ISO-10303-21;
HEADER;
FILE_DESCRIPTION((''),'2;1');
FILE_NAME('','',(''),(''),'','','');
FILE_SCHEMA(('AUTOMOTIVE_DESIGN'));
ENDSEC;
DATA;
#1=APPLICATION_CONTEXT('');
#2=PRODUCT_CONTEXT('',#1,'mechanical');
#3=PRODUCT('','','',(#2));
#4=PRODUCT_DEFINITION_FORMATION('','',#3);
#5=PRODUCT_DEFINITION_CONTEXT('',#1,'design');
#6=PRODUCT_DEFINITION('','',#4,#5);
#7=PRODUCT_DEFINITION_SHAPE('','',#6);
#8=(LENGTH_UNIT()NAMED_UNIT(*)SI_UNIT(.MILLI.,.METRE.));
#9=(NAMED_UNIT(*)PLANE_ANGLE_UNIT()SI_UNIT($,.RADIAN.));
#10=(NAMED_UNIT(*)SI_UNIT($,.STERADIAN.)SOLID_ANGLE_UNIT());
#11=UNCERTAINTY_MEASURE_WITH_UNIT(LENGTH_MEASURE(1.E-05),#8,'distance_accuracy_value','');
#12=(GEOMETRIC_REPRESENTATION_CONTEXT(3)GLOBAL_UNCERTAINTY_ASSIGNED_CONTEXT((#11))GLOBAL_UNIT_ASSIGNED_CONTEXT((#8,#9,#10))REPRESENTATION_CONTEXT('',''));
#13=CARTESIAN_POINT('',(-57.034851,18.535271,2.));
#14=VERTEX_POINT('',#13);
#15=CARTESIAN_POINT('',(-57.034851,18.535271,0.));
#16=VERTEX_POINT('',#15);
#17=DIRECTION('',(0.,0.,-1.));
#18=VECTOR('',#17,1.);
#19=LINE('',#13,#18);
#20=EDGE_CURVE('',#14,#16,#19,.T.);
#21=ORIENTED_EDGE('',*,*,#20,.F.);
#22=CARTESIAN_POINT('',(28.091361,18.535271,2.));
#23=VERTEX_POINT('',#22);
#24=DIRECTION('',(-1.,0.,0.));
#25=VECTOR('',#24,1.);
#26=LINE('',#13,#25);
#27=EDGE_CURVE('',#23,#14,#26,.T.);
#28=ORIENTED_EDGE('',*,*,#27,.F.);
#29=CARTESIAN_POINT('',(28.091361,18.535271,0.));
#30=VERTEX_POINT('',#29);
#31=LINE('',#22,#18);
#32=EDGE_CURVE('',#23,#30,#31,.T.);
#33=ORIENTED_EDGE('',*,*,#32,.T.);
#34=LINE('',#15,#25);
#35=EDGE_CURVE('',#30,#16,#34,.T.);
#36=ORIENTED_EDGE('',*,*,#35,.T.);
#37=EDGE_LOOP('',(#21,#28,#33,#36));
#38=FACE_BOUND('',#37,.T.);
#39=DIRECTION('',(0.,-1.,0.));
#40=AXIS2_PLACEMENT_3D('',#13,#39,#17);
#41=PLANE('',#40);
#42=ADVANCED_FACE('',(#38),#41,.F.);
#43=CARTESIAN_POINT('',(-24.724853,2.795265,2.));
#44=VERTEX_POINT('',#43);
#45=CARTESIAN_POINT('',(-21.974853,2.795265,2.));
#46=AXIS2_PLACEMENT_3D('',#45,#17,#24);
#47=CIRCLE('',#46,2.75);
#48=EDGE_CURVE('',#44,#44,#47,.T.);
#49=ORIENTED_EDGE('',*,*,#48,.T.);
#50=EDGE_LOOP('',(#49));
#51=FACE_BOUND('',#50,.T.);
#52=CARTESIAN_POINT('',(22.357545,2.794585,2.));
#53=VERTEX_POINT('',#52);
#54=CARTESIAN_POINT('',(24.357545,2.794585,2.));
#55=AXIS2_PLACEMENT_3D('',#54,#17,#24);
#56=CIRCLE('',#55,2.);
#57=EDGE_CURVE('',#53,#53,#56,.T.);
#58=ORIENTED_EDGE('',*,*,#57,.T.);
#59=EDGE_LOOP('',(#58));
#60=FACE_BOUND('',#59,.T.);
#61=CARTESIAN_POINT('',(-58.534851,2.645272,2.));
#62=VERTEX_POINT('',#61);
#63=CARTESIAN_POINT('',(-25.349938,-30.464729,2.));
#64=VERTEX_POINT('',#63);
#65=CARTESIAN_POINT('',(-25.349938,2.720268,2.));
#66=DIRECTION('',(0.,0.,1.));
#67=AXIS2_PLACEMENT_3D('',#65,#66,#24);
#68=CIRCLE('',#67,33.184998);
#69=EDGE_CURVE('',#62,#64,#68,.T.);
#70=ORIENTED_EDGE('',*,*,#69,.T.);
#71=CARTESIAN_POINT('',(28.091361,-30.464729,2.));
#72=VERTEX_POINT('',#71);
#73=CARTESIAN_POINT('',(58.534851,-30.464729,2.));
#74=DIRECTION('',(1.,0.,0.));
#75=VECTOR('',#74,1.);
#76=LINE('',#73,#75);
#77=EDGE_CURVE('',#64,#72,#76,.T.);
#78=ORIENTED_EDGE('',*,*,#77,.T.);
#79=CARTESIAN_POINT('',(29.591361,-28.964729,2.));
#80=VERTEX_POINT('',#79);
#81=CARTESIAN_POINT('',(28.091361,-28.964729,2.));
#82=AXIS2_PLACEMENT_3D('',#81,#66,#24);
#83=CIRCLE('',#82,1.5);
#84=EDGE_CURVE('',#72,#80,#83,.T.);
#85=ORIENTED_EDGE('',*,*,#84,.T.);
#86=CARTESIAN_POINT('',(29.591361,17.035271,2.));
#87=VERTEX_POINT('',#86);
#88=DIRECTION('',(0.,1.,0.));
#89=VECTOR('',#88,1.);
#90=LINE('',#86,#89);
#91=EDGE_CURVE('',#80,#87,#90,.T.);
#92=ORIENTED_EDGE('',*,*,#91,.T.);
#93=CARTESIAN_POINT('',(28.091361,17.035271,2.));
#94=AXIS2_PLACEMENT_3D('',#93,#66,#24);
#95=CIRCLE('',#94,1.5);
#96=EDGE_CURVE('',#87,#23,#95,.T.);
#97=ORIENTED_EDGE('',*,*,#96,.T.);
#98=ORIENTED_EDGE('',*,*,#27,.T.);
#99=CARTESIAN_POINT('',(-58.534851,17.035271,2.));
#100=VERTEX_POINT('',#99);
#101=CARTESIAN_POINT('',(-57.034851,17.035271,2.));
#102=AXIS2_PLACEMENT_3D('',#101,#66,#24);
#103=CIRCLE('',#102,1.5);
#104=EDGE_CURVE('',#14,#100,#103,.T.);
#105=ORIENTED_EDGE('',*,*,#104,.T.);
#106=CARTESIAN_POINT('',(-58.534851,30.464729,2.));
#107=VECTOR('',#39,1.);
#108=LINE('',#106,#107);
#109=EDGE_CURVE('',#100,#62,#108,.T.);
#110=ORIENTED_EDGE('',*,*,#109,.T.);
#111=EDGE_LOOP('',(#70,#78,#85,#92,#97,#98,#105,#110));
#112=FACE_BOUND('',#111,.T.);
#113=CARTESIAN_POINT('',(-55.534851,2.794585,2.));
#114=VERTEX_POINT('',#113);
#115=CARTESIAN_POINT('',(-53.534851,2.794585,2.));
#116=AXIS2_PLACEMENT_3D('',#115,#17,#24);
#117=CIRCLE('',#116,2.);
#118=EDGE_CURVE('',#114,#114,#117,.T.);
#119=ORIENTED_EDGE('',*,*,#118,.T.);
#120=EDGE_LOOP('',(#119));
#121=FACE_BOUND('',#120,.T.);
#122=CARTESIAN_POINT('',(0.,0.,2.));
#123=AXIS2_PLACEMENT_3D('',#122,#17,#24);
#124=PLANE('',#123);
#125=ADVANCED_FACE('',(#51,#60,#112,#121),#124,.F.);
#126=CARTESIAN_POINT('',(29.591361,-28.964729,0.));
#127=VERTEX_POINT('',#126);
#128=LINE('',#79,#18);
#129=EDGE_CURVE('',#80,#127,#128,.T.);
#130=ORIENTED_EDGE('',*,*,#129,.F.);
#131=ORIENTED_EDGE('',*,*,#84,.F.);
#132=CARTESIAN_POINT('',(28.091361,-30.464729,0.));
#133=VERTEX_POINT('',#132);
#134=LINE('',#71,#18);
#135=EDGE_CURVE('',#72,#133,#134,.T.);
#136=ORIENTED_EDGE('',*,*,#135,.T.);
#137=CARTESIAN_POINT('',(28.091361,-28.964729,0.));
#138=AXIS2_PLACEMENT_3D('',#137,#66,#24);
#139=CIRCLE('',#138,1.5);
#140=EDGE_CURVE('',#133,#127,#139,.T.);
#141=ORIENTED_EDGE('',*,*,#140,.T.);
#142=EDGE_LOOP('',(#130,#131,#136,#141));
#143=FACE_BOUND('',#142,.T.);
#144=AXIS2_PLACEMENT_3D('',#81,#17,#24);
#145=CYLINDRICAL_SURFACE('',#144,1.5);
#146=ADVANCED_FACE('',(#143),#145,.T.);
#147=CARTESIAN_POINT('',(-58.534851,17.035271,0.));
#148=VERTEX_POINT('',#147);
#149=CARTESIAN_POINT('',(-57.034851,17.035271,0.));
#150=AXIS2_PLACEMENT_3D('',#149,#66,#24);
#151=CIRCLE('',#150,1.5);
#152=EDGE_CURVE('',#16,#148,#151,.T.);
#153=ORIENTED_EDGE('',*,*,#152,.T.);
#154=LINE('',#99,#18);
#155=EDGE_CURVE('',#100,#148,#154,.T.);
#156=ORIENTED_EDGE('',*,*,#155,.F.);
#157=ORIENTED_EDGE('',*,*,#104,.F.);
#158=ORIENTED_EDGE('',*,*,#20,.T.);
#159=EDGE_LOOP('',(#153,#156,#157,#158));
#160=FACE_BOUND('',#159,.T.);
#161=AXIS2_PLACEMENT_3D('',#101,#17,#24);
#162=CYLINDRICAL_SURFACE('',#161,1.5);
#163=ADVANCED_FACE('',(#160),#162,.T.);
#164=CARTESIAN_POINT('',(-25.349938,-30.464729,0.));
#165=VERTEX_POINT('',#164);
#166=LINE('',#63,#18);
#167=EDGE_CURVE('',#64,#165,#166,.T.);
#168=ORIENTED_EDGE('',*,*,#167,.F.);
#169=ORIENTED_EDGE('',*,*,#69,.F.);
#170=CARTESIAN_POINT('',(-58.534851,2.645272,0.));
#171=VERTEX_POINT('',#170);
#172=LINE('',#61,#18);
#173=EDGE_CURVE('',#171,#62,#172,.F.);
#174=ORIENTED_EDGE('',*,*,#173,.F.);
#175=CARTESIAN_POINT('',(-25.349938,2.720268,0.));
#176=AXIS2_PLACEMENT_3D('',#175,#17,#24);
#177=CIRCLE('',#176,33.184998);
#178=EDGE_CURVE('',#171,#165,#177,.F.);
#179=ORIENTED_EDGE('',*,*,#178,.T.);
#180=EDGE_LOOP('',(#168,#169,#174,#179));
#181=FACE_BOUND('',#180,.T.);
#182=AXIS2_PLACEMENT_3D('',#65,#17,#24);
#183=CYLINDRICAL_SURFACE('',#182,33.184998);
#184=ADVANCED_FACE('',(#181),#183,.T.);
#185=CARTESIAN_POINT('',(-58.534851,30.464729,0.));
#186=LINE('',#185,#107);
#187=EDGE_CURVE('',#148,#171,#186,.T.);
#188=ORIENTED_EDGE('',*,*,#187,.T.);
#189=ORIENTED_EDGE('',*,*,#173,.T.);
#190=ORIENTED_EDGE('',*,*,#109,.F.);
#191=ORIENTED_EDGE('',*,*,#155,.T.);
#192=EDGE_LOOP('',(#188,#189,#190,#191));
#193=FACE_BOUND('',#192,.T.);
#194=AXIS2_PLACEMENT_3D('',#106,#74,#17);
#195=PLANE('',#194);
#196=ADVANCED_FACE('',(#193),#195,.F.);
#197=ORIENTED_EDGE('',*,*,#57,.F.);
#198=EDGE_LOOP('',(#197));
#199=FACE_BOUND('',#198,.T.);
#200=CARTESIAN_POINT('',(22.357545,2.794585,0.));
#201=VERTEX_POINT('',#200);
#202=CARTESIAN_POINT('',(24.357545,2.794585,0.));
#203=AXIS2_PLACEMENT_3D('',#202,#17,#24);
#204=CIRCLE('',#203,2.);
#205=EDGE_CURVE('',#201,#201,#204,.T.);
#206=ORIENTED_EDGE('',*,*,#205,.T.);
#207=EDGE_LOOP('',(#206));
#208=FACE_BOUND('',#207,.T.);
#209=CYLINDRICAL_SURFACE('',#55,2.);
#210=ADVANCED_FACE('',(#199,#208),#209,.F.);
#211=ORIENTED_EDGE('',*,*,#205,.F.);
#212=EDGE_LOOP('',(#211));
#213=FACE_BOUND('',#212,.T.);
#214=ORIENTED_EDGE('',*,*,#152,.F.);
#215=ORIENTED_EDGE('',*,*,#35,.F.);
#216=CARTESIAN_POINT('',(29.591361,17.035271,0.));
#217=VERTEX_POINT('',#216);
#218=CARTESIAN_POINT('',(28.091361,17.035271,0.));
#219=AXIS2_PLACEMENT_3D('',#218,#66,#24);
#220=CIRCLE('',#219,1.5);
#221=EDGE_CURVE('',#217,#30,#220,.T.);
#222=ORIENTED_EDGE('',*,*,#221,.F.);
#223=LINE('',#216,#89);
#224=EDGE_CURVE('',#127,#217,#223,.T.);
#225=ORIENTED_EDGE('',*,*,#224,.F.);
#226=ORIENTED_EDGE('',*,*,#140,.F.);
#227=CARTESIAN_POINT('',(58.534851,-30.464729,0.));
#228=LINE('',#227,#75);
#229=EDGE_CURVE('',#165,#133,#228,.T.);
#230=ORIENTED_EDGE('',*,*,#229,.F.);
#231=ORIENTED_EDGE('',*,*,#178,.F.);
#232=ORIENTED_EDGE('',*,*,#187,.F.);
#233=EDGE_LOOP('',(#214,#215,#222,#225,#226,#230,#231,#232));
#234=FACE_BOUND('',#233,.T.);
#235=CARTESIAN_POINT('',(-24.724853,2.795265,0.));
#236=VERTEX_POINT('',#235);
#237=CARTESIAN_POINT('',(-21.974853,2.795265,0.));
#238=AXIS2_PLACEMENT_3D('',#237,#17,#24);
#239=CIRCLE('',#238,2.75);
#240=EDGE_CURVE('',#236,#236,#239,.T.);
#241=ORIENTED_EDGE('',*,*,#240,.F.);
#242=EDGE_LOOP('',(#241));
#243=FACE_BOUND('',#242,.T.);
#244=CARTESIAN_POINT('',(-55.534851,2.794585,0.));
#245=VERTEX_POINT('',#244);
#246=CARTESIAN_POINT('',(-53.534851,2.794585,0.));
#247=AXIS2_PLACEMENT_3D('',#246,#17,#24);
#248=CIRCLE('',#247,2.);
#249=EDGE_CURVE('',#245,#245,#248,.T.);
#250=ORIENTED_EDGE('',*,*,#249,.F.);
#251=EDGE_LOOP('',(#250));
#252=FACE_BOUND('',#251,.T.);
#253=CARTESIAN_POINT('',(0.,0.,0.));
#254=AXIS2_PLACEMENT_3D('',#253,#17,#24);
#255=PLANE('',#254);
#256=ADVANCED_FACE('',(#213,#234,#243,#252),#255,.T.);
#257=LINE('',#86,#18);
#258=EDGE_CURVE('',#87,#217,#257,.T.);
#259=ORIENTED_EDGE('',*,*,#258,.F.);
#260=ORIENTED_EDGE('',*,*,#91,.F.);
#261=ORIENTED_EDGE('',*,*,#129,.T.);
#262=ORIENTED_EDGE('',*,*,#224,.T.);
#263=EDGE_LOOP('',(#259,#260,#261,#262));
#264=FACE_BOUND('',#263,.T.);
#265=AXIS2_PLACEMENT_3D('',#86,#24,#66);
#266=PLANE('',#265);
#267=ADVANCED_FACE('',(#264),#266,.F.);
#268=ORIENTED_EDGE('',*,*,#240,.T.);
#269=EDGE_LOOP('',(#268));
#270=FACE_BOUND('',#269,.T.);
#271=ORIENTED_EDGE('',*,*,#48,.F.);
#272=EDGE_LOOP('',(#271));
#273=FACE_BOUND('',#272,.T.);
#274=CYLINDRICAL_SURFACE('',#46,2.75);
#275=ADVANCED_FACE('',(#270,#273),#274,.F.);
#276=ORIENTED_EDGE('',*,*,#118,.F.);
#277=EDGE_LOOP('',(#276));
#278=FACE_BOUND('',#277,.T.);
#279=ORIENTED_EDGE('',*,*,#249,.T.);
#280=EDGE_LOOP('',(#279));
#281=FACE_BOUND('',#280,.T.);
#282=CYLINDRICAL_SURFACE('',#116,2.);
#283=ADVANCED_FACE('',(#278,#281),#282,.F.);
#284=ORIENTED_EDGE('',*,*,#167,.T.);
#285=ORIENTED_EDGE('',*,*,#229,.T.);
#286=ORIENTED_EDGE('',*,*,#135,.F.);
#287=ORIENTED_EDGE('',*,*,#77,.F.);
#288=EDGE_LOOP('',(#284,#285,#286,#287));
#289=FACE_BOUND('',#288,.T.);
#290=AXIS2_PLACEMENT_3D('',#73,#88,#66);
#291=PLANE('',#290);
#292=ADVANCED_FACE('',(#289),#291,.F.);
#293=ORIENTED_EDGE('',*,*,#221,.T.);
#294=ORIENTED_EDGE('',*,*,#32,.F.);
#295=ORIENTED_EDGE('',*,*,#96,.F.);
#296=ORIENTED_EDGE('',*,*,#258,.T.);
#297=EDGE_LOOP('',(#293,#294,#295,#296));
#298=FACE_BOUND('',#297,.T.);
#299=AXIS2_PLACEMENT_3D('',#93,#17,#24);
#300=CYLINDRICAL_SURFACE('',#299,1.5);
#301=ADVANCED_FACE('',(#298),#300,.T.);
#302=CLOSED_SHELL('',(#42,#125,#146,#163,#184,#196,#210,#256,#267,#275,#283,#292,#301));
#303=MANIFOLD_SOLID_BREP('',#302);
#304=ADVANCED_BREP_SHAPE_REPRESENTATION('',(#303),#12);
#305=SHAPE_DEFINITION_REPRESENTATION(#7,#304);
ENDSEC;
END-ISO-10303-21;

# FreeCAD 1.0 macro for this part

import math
import FreeCAD as App
import Part
import Sketcher

V = App.Vector

doc = App.newDocument("Part")
body = doc.addObject("PartDesign::Body", "Body")

# Sketch on XY plane
sketch1 = body.newObject("Sketcher::SketchObject", "Sketch")
sketch1.AttachmentSupport = (doc.getObject("XY_Plane"), [""])
sketch1.MapMode = "FlatFace"
sketch1.addGeometry([
    Part.LineSegment(V(-59, 30, 0), V(-59, -30, 0)),
    Part.LineSegment(V(-59, -30, 0), V(59, -30, 0)),
    Part.LineSegment(V(59, -30, 0), V(59, 30, 0)),
    Part.LineSegment(V(59, 30, 0), V(-59, 30, 0)),
], False)
sketch1.addConstraint([
    Sketcher.Constraint("Coincident", 0, 2, 1, 1),
    Sketcher.Constraint("Coincident", 1, 2, 2, 1),
    Sketcher.Constraint("Coincident", 2, 2, 3, 1),
    Sketcher.Constraint("Coincident", 3, 2, 0, 1),
    Sketcher.Constraint("Vertical", 0),
    Sketcher.Constraint("Horizontal", 1),
    Sketcher.Constraint("Vertical", 2),
    Sketcher.Constraint("Horizontal", 3),
    Sketcher.Constraint("Symmetric", 0, 2, 2, 2, -1, 1),
    Sketcher.Constraint("DistanceX", 1, 1, 1, 2, 117.069701),
    Sketcher.Constraint("DistanceY", 0, 2, 0, 1, 60.929458),
])
pad1 = body.newObject("PartDesign::Pad", "Pad")
pad1.Profile = sketch1
pad1.Length = 2

# Sketch on XY plane
sketch2 = body.newObject("Sketcher::SketchObject", "Sketch001")
sketch2.AttachmentSupport = (doc.getObject("XY_Plane"), [""])
sketch2.MapMode = "FlatFace"
sketch2.addGeometry([
    Part.Circle(V(24.4, 2.8, 0), V(0, 0, 1), 2),  # 0
    Part.Circle(V(-53.5, 2.8, 0), V(0, 0, 1), 2),  # 1
    Part.Circle(V(-22, 2.8, 0), V(0, 0, 1), 2.8),  # 2
    Part.LineSegment(V(-25.3, -30.5, 0), V(-25.3, -36.8, 0)),  # 3
    Part.LineSegment(V(-25.3, -36.8, 0), V(-60.5, -36.8, 0)),  # 4
    Part.LineSegment(V(-60.5, -36.8, 0), V(-60.5, 2.8, 0)),  # 5
    Part.LineSegment(V(-60.5, 2.8, 0), V(-58.5, 2.8, 0)),  # 6
    Part.ArcOfCircle(Part.Circle(V(-25.3, 2.7, 0), V(0, 0, 1), 33.2), math.radians(180), math.radians(270)),  # 7
    Part.LineSegment(V(29.6, -29, 0), V(29.6, 17, 0)),  # 8
    Part.ArcOfCircle(Part.Circle(V(28.1, 17, 0), V(0, 0, 1), 1.5), math.radians(0), math.radians(90)),  # 9
    Part.LineSegment(V(28.1, 18.5, 0), V(-57, 18.5, 0)),  # 10
    Part.ArcOfCircle(Part.Circle(V(-57, 17, 0), V(0, 0, 1), 1.5), math.radians(90), math.radians(180)),  # 11
    Part.LineSegment(V(-58.5, 17, 0), V(-58.5, 30.5, 0)),  # 12
    Part.LineSegment(V(-58.5, 30.5, 0), V(58.5, 30.5, 0)),  # 13
    Part.LineSegment(V(58.5, 30.5, 0), V(58.5, -30.5, 0)),  # 14
    Part.LineSegment(V(58.5, -30.5, 0), V(28.1, -30.5, 0)),  # 15
    Part.ArcOfCircle(Part.Circle(V(28.1, -29, 0), V(0, 0, 1), 1.5), math.radians(-90), math.radians(0)),  # 16
], False)
sketch2.addConstraint([
    Sketcher.Constraint("Coincident", 3, 2, 4, 1),
    Sketcher.Constraint("Coincident", 4, 2, 5, 1),
    Sketcher.Constraint("Coincident", 5, 2, 6, 1),
    Sketcher.Constraint("Coincident", 6, 2, 7, 1),
    Sketcher.Constraint("Coincident", 7, 2, 3, 1),
    Sketcher.Constraint("Tangent", 8, 2, 9, 1),
    Sketcher.Constraint("Tangent", 9, 2, 10, 1),
    Sketcher.Constraint("Tangent", 10, 2, 11, 1),
    Sketcher.Constraint("Tangent", 11, 2, 12, 1),
    Sketcher.Constraint("Coincident", 12, 2, 13, 1),
    Sketcher.Constraint("Coincident", 13, 2, 14, 1),
    Sketcher.Constraint("Coincident", 14, 2, 15, 1),
    Sketcher.Constraint("Tangent", 15, 2, 16, 1),
    Sketcher.Constraint("Tangent", 16, 2, 8, 1),
    Sketcher.Constraint("Vertical", 3),
    Sketcher.Constraint("Horizontal", 4),
    Sketcher.Constraint("Vertical", 5),
    Sketcher.Constraint("Horizontal", 6),
    Sketcher.Constraint("Vertical", 8),
    Sketcher.Constraint("Horizontal", 10),
    Sketcher.Constraint("Vertical", 12),
    Sketcher.Constraint("Horizontal", 13),
    Sketcher.Constraint("Vertical", 14),
    Sketcher.Constraint("Horizontal", 15),
    Sketcher.Constraint("Equal", 0, 1),
    Sketcher.Constraint("Equal", 9, 11),
    Sketcher.Constraint("Equal", 11, 16),
    Sketcher.Constraint("Symmetric", 12, 2, 14, 2, -1, 1),
    Sketcher.Constraint("Horizontal", 0, 3, 1, 3),
    Sketcher.Constraint("Horizontal", 2, 3, 5, 2),
    Sketcher.Constraint("Horizontal", 7, 2, 14, 2),
    Sketcher.Constraint("Vertical", 7, 3, 3, 2),
    Sketcher.Constraint("Vertical", 6, 2, 11, 2),
    Sketcher.Constraint("Diameter", 0, 4.0),
    Sketcher.Constraint("Diameter", 2, 5.5),
    Sketcher.Constraint("Radius", 9, 1.5),
    Sketcher.Constraint("DistanceY", 8, 1, 8, 2, 46.0),
    Sketcher.Constraint("DistanceX", 6, 2, 1, 3, 5.0),
    Sketcher.Constraint("DistanceX", 13, 1, 13, 2, 117.069701),
    Sketcher.Constraint("Radius", 7, 33.184998),
    Sketcher.Constraint("DistanceX", 6, 1, 6, 2, 1.95937),
    Sketcher.Constraint("DistanceX", 10, 2, 10, 1, 85.126212),
    Sketcher.Constraint("DistanceY", 3, 2, 3, 1, 6.291981),
    Sketcher.Constraint("DistanceY", 12, 1, 12, 2, 13.429458),
    Sketcher.Constraint("DistanceY", 5, 1, 5, 2, 39.551976),
    Sketcher.Constraint("DistanceY", 1, 3, 2, 3, 0.000681),
    Sketcher.Constraint("DistanceX", -1, 1, 0, 3, 24.357545),
    Sketcher.Constraint("DistanceX", 2, 3, -1, 1, 21.974853),
])
pocket1 = body.newObject("PartDesign::Pocket", "Pocket")
pocket1.Profile = sketch2
pocket1.Type = "ThroughAll"
pocket1.Reversed = True

doc.recompute()
